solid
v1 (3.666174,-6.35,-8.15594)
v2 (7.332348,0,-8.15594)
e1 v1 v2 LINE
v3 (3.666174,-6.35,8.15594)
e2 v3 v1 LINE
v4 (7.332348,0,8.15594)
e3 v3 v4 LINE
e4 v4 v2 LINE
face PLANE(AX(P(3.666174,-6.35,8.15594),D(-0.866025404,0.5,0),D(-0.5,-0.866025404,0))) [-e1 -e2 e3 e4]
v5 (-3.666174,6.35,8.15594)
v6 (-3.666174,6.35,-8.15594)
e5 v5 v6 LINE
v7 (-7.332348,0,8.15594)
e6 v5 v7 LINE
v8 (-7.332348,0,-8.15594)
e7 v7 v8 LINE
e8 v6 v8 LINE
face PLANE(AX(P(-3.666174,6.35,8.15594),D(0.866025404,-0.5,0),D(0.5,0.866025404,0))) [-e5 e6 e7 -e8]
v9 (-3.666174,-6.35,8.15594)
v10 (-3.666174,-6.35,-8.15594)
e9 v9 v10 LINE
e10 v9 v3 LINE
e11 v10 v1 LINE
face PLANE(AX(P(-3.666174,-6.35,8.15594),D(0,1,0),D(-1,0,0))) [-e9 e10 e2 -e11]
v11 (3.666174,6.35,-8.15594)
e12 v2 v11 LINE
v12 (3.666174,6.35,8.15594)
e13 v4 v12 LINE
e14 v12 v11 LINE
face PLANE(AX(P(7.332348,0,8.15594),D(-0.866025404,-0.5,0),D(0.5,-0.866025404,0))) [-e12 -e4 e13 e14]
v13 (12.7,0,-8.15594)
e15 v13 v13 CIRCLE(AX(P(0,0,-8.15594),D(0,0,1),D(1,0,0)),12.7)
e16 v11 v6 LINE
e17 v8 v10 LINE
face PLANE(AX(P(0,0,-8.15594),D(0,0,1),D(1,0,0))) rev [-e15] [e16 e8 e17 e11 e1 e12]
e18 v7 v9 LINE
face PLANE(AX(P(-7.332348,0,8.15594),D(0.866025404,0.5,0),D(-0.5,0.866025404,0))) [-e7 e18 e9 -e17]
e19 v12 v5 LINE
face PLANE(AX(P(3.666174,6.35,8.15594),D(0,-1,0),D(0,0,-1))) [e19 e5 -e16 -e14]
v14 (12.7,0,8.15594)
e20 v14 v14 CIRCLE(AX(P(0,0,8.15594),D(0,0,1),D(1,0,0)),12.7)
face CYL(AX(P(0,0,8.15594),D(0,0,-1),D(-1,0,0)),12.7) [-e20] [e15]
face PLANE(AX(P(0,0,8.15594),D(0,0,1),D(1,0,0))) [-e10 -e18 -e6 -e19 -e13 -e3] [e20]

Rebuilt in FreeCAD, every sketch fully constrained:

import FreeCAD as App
import Part
import Sketcher
from FreeCAD import Vector
Q = App.Units.Quantity

doc = App.newDocument("Part")
body = doc.addObject("PartDesign::Body", "Body")

# Sketch on XY plane
sketch1 = body.newObject("Sketcher::SketchObject", "Sketch")
sketch1.AttachmentSupport = (doc.getObject("XY_Plane"), [""])
sketch1.MapMode = "FlatFace"
sketch1.addGeometry([
    Part.Circle(Vector(0, 0, 0), Vector(0, 0, 1), 13),  # 0
    Part.LineSegment(Vector(-4, -6, 0), Vector(-7, 0, 0)),  # 1
    Part.LineSegment(Vector(-7, 0, 0), Vector(-4, 6, 0)),  # 2
    Part.LineSegment(Vector(-4, 6, 0), Vector(4, 6, 0)),  # 3
    Part.LineSegment(Vector(4, 6, 0), Vector(7, 0, 0)),  # 4
    Part.LineSegment(Vector(7, 0, 0), Vector(4, -6, 0)),  # 5
    Part.LineSegment(Vector(4, -6, 0), Vector(-4, -6, 0)),  # 6
], False)
sketch1.addConstraint([
    Sketcher.Constraint("Coincident", 1, 2, 2, 1),
    Sketcher.Constraint("Coincident", 2, 2, 3, 1),
    Sketcher.Constraint("Coincident", 3, 2, 4, 1),
    Sketcher.Constraint("Coincident", 4, 2, 5, 1),
    Sketcher.Constraint("Coincident", 5, 2, 6, 1),
    Sketcher.Constraint("Coincident", 6, 2, 1, 1),
    Sketcher.Constraint("Horizontal", 3),
    Sketcher.Constraint("Horizontal", 6),
    Sketcher.Constraint("Coincident", 0, 3, -1, 1),
    Sketcher.Constraint("Symmetric", 1, 2, 4, 2, -1, 1),
    Sketcher.Constraint("Symmetric", 2, 2, 5, 2, -1, 1),
    Sketcher.Constraint("PointOnObject", 1, 2, -1),
    Sketcher.Constraint("Parallel", 1, 4),
    Sketcher.Constraint("Vertical", 3, 2, 5, 2),
    Sketcher.Constraint("Diameter", 0, Q("1 in")),
    Sketcher.Constraint("Angle", 1, Q("120 deg")),
    Sketcher.Constraint("DistanceY", 5, 2, 3, 2, Q("0.5 in")),
    Sketcher.Constraint("DistanceX", 3, 1, 3, 2, Q("7.332348 mm")),
])
pad1 = body.newObject("PartDesign::Pad", "Pad")
pad1.Profile = sketch1
pad1.Length = Q("0.6422 in")
pad1.Midplane = True

doc.recompute()
